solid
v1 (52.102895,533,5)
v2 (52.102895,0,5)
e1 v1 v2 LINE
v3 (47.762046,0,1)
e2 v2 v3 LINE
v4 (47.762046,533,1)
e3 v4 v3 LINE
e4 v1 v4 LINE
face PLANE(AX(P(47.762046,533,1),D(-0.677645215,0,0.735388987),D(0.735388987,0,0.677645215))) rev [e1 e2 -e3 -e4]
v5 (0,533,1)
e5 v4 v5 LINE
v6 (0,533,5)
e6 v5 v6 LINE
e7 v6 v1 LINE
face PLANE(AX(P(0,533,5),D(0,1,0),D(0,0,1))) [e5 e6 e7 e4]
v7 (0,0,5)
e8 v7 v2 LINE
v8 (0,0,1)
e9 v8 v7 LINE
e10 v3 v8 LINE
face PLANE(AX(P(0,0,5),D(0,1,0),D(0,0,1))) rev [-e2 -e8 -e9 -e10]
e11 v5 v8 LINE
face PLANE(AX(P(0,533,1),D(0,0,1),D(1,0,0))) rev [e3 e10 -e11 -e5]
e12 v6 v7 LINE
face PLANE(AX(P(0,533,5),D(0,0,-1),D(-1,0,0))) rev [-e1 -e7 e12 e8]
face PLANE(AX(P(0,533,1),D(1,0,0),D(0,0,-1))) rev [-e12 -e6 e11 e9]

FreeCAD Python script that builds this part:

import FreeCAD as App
import Part
import Sketcher

V = App.Vector

doc = App.newDocument("Part")
body = doc.addObject("PartDesign::Body", "Body")

sketch1 = doc.addObject("Sketcher::SketchObject", "Sketch")
body.addObject(sketch1)
sketch1.AttachmentSupport = (doc.XZ_Plane, [""])
sketch1.MapMode = "FlatFace"
sketch1.addGeometry([
    Part.LineSegment(V(47.8, 1, 0), V(0, 1, 0)),
    Part.LineSegment(V(0, 1, 0), V(0, 5, 0)),
    Part.LineSegment(V(0, 5, 0), V(52.1, 5, 0)),
    Part.LineSegment(V(52.1, 5, 0), V(47.8, 1, 0)),
], False)
sketch1.addConstraint([
    Sketcher.Constraint("Coincident", 0, 2, 1, 1),
    Sketcher.Constraint("Coincident", 1, 2, 2, 1),
    Sketcher.Constraint("Coincident", 2, 2, 3, 1),
    Sketcher.Constraint("Coincident", 3, 2, 0, 1),
    Sketcher.Constraint("Horizontal", 0),
    Sketcher.Constraint("Vertical", 1),
    Sketcher.Constraint("Horizontal", 2),
    Sketcher.Constraint("PointOnObject", 0, 2, -2),
    Sketcher.Constraint("DistanceY", 1, 1, 1, 2, 4.0),
    Sketcher.Constraint("DistanceY", -1, 1, 0, 2, 1.0),
    Sketcher.Constraint("DistanceX", 0, 2, 0, 1, 47.762046),
    Sketcher.Constraint("DistanceX", 2, 1, 2, 2, 52.102895),
])
pad1 = doc.addObject("PartDesign::Pad", "Pad")
body.addObject(pad1)
pad1.Profile = sketch1
pad1.Length = 533
pad1.Reversed = True

doc.recompute()
